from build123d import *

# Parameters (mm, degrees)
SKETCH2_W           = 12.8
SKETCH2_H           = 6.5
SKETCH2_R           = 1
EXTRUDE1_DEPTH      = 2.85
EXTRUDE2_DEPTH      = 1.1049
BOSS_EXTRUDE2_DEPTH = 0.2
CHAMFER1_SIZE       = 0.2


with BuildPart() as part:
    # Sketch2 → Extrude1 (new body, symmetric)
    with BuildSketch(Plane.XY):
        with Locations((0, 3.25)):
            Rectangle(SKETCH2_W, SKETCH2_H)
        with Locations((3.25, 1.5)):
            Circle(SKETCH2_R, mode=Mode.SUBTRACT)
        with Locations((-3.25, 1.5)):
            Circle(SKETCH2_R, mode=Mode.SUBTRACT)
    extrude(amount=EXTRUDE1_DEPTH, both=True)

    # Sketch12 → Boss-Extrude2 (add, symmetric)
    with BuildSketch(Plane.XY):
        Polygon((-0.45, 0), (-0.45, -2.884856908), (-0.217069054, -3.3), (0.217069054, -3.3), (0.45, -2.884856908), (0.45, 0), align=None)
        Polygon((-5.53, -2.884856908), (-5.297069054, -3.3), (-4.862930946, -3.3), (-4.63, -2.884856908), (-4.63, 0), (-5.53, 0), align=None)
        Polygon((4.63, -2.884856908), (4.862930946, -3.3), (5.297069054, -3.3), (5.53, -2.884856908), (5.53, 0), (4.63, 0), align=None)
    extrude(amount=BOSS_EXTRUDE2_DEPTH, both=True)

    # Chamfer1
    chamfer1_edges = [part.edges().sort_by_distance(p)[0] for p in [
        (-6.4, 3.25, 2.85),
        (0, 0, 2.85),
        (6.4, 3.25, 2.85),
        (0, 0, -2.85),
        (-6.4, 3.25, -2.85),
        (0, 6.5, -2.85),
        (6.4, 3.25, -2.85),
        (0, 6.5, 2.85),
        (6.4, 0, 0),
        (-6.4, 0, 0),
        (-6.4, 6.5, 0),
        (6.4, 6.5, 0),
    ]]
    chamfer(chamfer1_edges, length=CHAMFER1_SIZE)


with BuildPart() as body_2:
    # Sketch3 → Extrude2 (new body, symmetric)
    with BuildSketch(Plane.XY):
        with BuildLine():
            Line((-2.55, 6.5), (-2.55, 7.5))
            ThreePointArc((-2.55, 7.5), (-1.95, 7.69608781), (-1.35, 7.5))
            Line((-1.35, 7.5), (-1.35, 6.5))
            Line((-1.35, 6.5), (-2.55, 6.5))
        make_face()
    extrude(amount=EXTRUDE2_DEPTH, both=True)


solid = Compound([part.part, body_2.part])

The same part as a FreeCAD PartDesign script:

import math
import FreeCAD as App
import Part
import Sketcher

V = App.Vector


def edges_at(feature, points):
    """Names of the edges that pass closest to the given points."""
    edges = feature.Shape.Edges
    near = lambda p: min(range(len(edges)), key=lambda i: edges[i].distToShape(Part.Vertex(*p))[0])
    return sorted({f"Edge{near(p) + 1}" for p in points})

doc = App.newDocument("Part")
params = doc.addObject("Spreadsheet::Sheet", "Params")
for row, (alias, value) in enumerate([
    ("sketch1_diameter", "2 mm"),
    ("sketch1_width", "12.8 mm"),
    ("sketch1_height", "6.5 mm"),
    ("pad1_length", "5.7 mm"),
    ("sketch2_width", "0.9 mm"),
    ("pad2_length", "0.4 mm"),
    ("chamfer_size", "0.2 mm"),
    ("sketch3_height", "1 mm"),
    ("sketch3_width", "1.2 mm"),
    ("pad3_length", "2.2098 mm"),
], start=1):
    params.set(f"A{row}", alias)
    params.set(f"B{row}", "=" + value)
    params.setAlias(f"B{row}", alias)

body = doc.addObject("PartDesign::Body", "Body")

# Sketch on XY plane
sketch1 = body.newObject("Sketcher::SketchObject", "Sketch")
sketch1.AttachmentSupport = (doc.getObject("XY_Plane"), [""])
sketch1.MapMode = "FlatFace"
sketch1.addGeometry([
    Part.LineSegment(V(-6.4, 6.5, 0), V(-6.4, 0, 0)),  # 0
    Part.LineSegment(V(-6.4, 0, 0), V(6.4, 0, 0)),  # 1
    Part.LineSegment(V(6.4, 0, 0), V(6.4, 6.5, 0)),  # 2
    Part.LineSegment(V(6.4, 6.5, 0), V(-6.4, 6.5, 0)),  # 3
    Part.Circle(V(-3.2, 1.5, 0), V(0, 0, 1), 1),  # 4
    Part.Circle(V(3.2, 1.5, 0), V(0, 0, 1), 1),  # 5
], False)
sketch1.addConstraint([
    Sketcher.Constraint("Coincident", 0, 2, 1, 1),
    Sketcher.Constraint("Coincident", 1, 2, 2, 1),
    Sketcher.Constraint("Coincident", 2, 2, 3, 1),
    Sketcher.Constraint("Coincident", 3, 2, 0, 1),
    Sketcher.Constraint("Vertical", 0),
    Sketcher.Constraint("Horizontal", 1),
    Sketcher.Constraint("Vertical", 2),
    Sketcher.Constraint("Horizontal", 3),
    Sketcher.Constraint("Equal", 4, 5),
    Sketcher.Constraint("Symmetric", 0, 2, 1, 2, -1, 1),
    Sketcher.Constraint("Symmetric", 4, 3, 5, 3, -2),
    Sketcher.Constraint("Diameter", 4, 2.0),
    Sketcher.Constraint("DistanceX", 1, 1, 1, 2, 12.8),
    Sketcher.Constraint("DistanceY", 0, 2, 0, 1, 6.5),
    Sketcher.Constraint("DistanceY", 5, 3, 2, 2, 5.0),
    Sketcher.Constraint("DistanceX", 4, 3, 5, 3, 6.5),
])
sketch1.setExpression("Constraints[11]", "Params.sketch1_diameter")
sketch1.setExpression("Constraints[12]", "Params.sketch1_width")
sketch1.setExpression("Constraints[13]", "Params.sketch1_height")
pad1 = body.newObject("PartDesign::Pad", "Pad")
pad1.Profile = sketch1
pad1.setExpression("Length", "Params.pad1_length")
pad1.Midplane = True

# Sketch on XY plane
sketch2 = body.newObject("Sketcher::SketchObject", "Sketch001")
sketch2.AttachmentSupport = (doc.getObject("XY_Plane"), [""])
sketch2.MapMode = "FlatFace"
sketch2.addGeometry([
    Part.LineSegment(V(-0.45, 0, 0), V(-0.45, -2.88, 0)),  # 0
    Part.LineSegment(V(-0.45, -2.88, 0), V(-0.22, -3.3, 0)),  # 1
    Part.LineSegment(V(-0.22, -3.3, 0), V(0.22, -3.3, 0)),  # 2
    Part.LineSegment(V(0.22, -3.3, 0), V(0.45, -2.88, 0)),  # 3
    Part.LineSegment(V(0.45, -2.88, 0), V(0.45, 0, 0)),  # 4
    Part.LineSegment(V(0.45, 0, 0), V(-0.45, 0, 0)),  # 5
    Part.LineSegment(V(-5.53, -2.88, 0), V(-5.3, -3.3, 0)),  # 6
    Part.LineSegment(V(-5.3, -3.3, 0), V(-4.86, -3.3, 0)),  # 7
    Part.LineSegment(V(-4.86, -3.3, 0), V(-4.63, -2.88, 0)),  # 8
    Part.LineSegment(V(-4.63, -2.88, 0), V(-4.63, 0, 0)),  # 9
    Part.LineSegment(V(-4.63, 0, 0), V(-5.53, 0, 0)),  # 10
    Part.LineSegment(V(-5.53, 0, 0), V(-5.53, -2.88, 0)),  # 11
    Part.LineSegment(V(4.63, -2.88, 0), V(4.86, -3.3, 0)),  # 12
    Part.LineSegment(V(4.86, -3.3, 0), V(5.3, -3.3, 0)),  # 13
    Part.LineSegment(V(5.3, -3.3, 0), V(5.53, -2.88, 0)),  # 14
    Part.LineSegment(V(5.53, -2.88, 0), V(5.53, 0, 0)),  # 15
    Part.LineSegment(V(5.53, 0, 0), V(4.63, 0, 0)),  # 16
    Part.LineSegment(V(4.63, 0, 0), V(4.63, -2.88, 0)),  # 17
], False)
sketch2.addConstraint([
    Sketcher.Constraint("Coincident", 0, 2, 1, 1),
    Sketcher.Constraint("Coincident", 1, 2, 2, 1),
    Sketcher.Constraint("Coincident", 2, 2, 3, 1),
    Sketcher.Constraint("Coincident", 3, 2, 4, 1),
    Sketcher.Constraint("Coincident", 4, 2, 5, 1),
    Sketcher.Constraint("Coincident", 5, 2, 0, 1),
    Sketcher.Constraint("Coincident", 6, 2, 7, 1),
    Sketcher.Constraint("Coincident", 7, 2, 8, 1),
    Sketcher.Constraint("Coincident", 8, 2, 9, 1),
    Sketcher.Constraint("Coincident", 9, 2, 10, 1),
    Sketcher.Constraint("Coincident", 10, 2, 11, 1),
    Sketcher.Constraint("Coincident", 11, 2, 6, 1),
    Sketcher.Constraint("Coincident", 12, 2, 13, 1),
    Sketcher.Constraint("Coincident", 13, 2, 14, 1),
    Sketcher.Constraint("Coincident", 14, 2, 15, 1),
    Sketcher.Constraint("Coincident", 15, 2, 16, 1),
    Sketcher.Constraint("Coincident", 16, 2, 17, 1),
    Sketcher.Constraint("Coincident", 17, 2, 12, 1),
    Sketcher.Constraint("Vertical", 0),
    Sketcher.Constraint("Horizontal", 2),
    Sketcher.Constraint("Vertical", 4),
    Sketcher.Constraint("Horizontal", 5),
    Sketcher.Constraint("Horizontal", 7),
    Sketcher.Constraint("Vertical", 9),
    Sketcher.Constraint("Horizontal", 10),
    Sketcher.Constraint("Vertical", 11),
    Sketcher.Constraint("Horizontal", 13),
    Sketcher.Constraint("Vertical", 15),
    Sketcher.Constraint("Horizontal", 16),
    Sketcher.Constraint("Vertical", 17),
    Sketcher.Constraint("Symmetric", 4, 2, 5, 2, -1, 1),
    Sketcher.Constraint("Symmetric", 10, 2, 15, 2, -1, 1),
    Sketcher.Constraint("Symmetric", 7, 2, 12, 2, -2),
    Sketcher.Constraint("Symmetric", 9, 2, 16, 2, -2),
    Sketcher.Constraint("Parallel", 1, 6),
    Sketcher.Constraint("Parallel", 3, 8),
    Sketcher.Constraint("Parallel", 6, 12),
    Sketcher.Constraint("Parallel", 8, 14),
    Sketcher.Constraint("Horizontal", 0, 2, 3, 2),
    Sketcher.Constraint("Horizontal", 2, 2, 6, 2),
    Sketcher.Constraint("Horizontal", 3, 2, 8, 2),
    Sketcher.Constraint("Horizontal", 8, 2, 11, 2),
    Sketcher.Constraint("Horizontal", 11, 2, 14, 2),
    Sketcher.Constraint("Horizontal", 14, 2, 17, 2),
    Sketcher.Constraint("Equal", 2, 7),
    Sketcher.Constraint("DistanceX", 5, 2, 5, 1, 0.9),
    Sketcher.Constraint("DistanceY", 1, 2, -1, 1, 3.3),
    Sketcher.Constraint("DistanceX", 8, 2, -1, 1, 4.63),
    Sketcher.Constraint("DistanceX", 2, 1, 2, 2, 0.434138),
    Sketcher.Constraint("DistanceY", 0, 2, 0, 1, 2.884857),
])
sketch2.setExpression("Constraints[45]", "Params.sketch2_width")
pad2 = body.newObject("PartDesign::Pad", "Pad001")
pad2.Profile = sketch2
pad2.setExpression("Length", "Params.pad2_length")
pad2.Midplane = True
doc.recompute()

chamfer = body.newObject("PartDesign::Chamfer", "Chamfer")
chamfer.Base = (pad2, edges_at(pad2, [
    (-6.4, 3.25, 2.85),
    (0, 0, 2.85),
    (6.4, 3.25, 2.85),
    (0, 0, -2.85),
    (-6.4, 3.25, -2.85),
    (0, 6.5, -2.85),
    (6.4, 3.25, -2.85),
    (0, 6.5, 2.85),
    (6.4, 0, 0),
    (-6.4, 0, 0),
    (-6.4, 6.5, 0),
    (6.4, 6.5, 0),
]))
chamfer.setExpression("Size", "Params.chamfer_size")
body2 = doc.addObject("PartDesign::Body", "Body001")

# Sketch on XY plane
sketch3 = body2.newObject("Sketcher::SketchObject", "Sketch002")
sketch3.AttachmentSupport = (doc.getObject("XY_Plane001"), [""])
sketch3.MapMode = "FlatFace"
sketch3.addGeometry([
    Part.LineSegment(V(-2.5, 7.5, 0), V(-2.5, 6.5, 0)),
    Part.LineSegment(V(-2.5, 6.5, 0), V(-1.4, 6.5, 0)),
    Part.LineSegment(V(-1.4, 6.5, 0), V(-1.4, 7.5, 0)),
    Part.ArcOfCircle(Part.Circle(V(-1.9, 6.7, 0), V(0, 0, 1), 1), math.radians(54), math.radians(126)),
], False)
sketch3.addConstraint([
    Sketcher.Constraint("Coincident", 0, 2, 1, 1),
    Sketcher.Constraint("Coincident", 1, 2, 2, 1),
    Sketcher.Constraint("Coincident", 2, 2, 3, 1),
    Sketcher.Constraint("Coincident", 3, 2, 0, 1),
    Sketcher.Constraint("Vertical", 0),
    Sketcher.Constraint("Horizontal", 1),
    Sketcher.Constraint("Vertical", 2),
    Sketcher.Constraint("Horizontal", 2, 2, 3, 2),
    Sketcher.Constraint("DistanceY", 0, 2, 0, 1, 1.0),
    Sketcher.Constraint("DistanceX", 1, 1, 1, 2, 1.2),
    Sketcher.Constraint("Radius", 3, 1.016),
    Sketcher.Constraint("DistanceY", -1, 1, 0, 2, 6.5),
    Sketcher.Constraint("DistanceX", 3, 3, -1, 1, 1.95),
])
sketch3.setExpression("Constraints[8]", "Params.sketch3_height")
sketch3.setExpression("Constraints[9]", "Params.sketch3_width")
pad3 = body2.newObject("PartDesign::Pad", "Pad002")
pad3.Profile = sketch3
pad3.setExpression("Length", "Params.pad3_length")
pad3.Midplane = True

doc.recompute()
